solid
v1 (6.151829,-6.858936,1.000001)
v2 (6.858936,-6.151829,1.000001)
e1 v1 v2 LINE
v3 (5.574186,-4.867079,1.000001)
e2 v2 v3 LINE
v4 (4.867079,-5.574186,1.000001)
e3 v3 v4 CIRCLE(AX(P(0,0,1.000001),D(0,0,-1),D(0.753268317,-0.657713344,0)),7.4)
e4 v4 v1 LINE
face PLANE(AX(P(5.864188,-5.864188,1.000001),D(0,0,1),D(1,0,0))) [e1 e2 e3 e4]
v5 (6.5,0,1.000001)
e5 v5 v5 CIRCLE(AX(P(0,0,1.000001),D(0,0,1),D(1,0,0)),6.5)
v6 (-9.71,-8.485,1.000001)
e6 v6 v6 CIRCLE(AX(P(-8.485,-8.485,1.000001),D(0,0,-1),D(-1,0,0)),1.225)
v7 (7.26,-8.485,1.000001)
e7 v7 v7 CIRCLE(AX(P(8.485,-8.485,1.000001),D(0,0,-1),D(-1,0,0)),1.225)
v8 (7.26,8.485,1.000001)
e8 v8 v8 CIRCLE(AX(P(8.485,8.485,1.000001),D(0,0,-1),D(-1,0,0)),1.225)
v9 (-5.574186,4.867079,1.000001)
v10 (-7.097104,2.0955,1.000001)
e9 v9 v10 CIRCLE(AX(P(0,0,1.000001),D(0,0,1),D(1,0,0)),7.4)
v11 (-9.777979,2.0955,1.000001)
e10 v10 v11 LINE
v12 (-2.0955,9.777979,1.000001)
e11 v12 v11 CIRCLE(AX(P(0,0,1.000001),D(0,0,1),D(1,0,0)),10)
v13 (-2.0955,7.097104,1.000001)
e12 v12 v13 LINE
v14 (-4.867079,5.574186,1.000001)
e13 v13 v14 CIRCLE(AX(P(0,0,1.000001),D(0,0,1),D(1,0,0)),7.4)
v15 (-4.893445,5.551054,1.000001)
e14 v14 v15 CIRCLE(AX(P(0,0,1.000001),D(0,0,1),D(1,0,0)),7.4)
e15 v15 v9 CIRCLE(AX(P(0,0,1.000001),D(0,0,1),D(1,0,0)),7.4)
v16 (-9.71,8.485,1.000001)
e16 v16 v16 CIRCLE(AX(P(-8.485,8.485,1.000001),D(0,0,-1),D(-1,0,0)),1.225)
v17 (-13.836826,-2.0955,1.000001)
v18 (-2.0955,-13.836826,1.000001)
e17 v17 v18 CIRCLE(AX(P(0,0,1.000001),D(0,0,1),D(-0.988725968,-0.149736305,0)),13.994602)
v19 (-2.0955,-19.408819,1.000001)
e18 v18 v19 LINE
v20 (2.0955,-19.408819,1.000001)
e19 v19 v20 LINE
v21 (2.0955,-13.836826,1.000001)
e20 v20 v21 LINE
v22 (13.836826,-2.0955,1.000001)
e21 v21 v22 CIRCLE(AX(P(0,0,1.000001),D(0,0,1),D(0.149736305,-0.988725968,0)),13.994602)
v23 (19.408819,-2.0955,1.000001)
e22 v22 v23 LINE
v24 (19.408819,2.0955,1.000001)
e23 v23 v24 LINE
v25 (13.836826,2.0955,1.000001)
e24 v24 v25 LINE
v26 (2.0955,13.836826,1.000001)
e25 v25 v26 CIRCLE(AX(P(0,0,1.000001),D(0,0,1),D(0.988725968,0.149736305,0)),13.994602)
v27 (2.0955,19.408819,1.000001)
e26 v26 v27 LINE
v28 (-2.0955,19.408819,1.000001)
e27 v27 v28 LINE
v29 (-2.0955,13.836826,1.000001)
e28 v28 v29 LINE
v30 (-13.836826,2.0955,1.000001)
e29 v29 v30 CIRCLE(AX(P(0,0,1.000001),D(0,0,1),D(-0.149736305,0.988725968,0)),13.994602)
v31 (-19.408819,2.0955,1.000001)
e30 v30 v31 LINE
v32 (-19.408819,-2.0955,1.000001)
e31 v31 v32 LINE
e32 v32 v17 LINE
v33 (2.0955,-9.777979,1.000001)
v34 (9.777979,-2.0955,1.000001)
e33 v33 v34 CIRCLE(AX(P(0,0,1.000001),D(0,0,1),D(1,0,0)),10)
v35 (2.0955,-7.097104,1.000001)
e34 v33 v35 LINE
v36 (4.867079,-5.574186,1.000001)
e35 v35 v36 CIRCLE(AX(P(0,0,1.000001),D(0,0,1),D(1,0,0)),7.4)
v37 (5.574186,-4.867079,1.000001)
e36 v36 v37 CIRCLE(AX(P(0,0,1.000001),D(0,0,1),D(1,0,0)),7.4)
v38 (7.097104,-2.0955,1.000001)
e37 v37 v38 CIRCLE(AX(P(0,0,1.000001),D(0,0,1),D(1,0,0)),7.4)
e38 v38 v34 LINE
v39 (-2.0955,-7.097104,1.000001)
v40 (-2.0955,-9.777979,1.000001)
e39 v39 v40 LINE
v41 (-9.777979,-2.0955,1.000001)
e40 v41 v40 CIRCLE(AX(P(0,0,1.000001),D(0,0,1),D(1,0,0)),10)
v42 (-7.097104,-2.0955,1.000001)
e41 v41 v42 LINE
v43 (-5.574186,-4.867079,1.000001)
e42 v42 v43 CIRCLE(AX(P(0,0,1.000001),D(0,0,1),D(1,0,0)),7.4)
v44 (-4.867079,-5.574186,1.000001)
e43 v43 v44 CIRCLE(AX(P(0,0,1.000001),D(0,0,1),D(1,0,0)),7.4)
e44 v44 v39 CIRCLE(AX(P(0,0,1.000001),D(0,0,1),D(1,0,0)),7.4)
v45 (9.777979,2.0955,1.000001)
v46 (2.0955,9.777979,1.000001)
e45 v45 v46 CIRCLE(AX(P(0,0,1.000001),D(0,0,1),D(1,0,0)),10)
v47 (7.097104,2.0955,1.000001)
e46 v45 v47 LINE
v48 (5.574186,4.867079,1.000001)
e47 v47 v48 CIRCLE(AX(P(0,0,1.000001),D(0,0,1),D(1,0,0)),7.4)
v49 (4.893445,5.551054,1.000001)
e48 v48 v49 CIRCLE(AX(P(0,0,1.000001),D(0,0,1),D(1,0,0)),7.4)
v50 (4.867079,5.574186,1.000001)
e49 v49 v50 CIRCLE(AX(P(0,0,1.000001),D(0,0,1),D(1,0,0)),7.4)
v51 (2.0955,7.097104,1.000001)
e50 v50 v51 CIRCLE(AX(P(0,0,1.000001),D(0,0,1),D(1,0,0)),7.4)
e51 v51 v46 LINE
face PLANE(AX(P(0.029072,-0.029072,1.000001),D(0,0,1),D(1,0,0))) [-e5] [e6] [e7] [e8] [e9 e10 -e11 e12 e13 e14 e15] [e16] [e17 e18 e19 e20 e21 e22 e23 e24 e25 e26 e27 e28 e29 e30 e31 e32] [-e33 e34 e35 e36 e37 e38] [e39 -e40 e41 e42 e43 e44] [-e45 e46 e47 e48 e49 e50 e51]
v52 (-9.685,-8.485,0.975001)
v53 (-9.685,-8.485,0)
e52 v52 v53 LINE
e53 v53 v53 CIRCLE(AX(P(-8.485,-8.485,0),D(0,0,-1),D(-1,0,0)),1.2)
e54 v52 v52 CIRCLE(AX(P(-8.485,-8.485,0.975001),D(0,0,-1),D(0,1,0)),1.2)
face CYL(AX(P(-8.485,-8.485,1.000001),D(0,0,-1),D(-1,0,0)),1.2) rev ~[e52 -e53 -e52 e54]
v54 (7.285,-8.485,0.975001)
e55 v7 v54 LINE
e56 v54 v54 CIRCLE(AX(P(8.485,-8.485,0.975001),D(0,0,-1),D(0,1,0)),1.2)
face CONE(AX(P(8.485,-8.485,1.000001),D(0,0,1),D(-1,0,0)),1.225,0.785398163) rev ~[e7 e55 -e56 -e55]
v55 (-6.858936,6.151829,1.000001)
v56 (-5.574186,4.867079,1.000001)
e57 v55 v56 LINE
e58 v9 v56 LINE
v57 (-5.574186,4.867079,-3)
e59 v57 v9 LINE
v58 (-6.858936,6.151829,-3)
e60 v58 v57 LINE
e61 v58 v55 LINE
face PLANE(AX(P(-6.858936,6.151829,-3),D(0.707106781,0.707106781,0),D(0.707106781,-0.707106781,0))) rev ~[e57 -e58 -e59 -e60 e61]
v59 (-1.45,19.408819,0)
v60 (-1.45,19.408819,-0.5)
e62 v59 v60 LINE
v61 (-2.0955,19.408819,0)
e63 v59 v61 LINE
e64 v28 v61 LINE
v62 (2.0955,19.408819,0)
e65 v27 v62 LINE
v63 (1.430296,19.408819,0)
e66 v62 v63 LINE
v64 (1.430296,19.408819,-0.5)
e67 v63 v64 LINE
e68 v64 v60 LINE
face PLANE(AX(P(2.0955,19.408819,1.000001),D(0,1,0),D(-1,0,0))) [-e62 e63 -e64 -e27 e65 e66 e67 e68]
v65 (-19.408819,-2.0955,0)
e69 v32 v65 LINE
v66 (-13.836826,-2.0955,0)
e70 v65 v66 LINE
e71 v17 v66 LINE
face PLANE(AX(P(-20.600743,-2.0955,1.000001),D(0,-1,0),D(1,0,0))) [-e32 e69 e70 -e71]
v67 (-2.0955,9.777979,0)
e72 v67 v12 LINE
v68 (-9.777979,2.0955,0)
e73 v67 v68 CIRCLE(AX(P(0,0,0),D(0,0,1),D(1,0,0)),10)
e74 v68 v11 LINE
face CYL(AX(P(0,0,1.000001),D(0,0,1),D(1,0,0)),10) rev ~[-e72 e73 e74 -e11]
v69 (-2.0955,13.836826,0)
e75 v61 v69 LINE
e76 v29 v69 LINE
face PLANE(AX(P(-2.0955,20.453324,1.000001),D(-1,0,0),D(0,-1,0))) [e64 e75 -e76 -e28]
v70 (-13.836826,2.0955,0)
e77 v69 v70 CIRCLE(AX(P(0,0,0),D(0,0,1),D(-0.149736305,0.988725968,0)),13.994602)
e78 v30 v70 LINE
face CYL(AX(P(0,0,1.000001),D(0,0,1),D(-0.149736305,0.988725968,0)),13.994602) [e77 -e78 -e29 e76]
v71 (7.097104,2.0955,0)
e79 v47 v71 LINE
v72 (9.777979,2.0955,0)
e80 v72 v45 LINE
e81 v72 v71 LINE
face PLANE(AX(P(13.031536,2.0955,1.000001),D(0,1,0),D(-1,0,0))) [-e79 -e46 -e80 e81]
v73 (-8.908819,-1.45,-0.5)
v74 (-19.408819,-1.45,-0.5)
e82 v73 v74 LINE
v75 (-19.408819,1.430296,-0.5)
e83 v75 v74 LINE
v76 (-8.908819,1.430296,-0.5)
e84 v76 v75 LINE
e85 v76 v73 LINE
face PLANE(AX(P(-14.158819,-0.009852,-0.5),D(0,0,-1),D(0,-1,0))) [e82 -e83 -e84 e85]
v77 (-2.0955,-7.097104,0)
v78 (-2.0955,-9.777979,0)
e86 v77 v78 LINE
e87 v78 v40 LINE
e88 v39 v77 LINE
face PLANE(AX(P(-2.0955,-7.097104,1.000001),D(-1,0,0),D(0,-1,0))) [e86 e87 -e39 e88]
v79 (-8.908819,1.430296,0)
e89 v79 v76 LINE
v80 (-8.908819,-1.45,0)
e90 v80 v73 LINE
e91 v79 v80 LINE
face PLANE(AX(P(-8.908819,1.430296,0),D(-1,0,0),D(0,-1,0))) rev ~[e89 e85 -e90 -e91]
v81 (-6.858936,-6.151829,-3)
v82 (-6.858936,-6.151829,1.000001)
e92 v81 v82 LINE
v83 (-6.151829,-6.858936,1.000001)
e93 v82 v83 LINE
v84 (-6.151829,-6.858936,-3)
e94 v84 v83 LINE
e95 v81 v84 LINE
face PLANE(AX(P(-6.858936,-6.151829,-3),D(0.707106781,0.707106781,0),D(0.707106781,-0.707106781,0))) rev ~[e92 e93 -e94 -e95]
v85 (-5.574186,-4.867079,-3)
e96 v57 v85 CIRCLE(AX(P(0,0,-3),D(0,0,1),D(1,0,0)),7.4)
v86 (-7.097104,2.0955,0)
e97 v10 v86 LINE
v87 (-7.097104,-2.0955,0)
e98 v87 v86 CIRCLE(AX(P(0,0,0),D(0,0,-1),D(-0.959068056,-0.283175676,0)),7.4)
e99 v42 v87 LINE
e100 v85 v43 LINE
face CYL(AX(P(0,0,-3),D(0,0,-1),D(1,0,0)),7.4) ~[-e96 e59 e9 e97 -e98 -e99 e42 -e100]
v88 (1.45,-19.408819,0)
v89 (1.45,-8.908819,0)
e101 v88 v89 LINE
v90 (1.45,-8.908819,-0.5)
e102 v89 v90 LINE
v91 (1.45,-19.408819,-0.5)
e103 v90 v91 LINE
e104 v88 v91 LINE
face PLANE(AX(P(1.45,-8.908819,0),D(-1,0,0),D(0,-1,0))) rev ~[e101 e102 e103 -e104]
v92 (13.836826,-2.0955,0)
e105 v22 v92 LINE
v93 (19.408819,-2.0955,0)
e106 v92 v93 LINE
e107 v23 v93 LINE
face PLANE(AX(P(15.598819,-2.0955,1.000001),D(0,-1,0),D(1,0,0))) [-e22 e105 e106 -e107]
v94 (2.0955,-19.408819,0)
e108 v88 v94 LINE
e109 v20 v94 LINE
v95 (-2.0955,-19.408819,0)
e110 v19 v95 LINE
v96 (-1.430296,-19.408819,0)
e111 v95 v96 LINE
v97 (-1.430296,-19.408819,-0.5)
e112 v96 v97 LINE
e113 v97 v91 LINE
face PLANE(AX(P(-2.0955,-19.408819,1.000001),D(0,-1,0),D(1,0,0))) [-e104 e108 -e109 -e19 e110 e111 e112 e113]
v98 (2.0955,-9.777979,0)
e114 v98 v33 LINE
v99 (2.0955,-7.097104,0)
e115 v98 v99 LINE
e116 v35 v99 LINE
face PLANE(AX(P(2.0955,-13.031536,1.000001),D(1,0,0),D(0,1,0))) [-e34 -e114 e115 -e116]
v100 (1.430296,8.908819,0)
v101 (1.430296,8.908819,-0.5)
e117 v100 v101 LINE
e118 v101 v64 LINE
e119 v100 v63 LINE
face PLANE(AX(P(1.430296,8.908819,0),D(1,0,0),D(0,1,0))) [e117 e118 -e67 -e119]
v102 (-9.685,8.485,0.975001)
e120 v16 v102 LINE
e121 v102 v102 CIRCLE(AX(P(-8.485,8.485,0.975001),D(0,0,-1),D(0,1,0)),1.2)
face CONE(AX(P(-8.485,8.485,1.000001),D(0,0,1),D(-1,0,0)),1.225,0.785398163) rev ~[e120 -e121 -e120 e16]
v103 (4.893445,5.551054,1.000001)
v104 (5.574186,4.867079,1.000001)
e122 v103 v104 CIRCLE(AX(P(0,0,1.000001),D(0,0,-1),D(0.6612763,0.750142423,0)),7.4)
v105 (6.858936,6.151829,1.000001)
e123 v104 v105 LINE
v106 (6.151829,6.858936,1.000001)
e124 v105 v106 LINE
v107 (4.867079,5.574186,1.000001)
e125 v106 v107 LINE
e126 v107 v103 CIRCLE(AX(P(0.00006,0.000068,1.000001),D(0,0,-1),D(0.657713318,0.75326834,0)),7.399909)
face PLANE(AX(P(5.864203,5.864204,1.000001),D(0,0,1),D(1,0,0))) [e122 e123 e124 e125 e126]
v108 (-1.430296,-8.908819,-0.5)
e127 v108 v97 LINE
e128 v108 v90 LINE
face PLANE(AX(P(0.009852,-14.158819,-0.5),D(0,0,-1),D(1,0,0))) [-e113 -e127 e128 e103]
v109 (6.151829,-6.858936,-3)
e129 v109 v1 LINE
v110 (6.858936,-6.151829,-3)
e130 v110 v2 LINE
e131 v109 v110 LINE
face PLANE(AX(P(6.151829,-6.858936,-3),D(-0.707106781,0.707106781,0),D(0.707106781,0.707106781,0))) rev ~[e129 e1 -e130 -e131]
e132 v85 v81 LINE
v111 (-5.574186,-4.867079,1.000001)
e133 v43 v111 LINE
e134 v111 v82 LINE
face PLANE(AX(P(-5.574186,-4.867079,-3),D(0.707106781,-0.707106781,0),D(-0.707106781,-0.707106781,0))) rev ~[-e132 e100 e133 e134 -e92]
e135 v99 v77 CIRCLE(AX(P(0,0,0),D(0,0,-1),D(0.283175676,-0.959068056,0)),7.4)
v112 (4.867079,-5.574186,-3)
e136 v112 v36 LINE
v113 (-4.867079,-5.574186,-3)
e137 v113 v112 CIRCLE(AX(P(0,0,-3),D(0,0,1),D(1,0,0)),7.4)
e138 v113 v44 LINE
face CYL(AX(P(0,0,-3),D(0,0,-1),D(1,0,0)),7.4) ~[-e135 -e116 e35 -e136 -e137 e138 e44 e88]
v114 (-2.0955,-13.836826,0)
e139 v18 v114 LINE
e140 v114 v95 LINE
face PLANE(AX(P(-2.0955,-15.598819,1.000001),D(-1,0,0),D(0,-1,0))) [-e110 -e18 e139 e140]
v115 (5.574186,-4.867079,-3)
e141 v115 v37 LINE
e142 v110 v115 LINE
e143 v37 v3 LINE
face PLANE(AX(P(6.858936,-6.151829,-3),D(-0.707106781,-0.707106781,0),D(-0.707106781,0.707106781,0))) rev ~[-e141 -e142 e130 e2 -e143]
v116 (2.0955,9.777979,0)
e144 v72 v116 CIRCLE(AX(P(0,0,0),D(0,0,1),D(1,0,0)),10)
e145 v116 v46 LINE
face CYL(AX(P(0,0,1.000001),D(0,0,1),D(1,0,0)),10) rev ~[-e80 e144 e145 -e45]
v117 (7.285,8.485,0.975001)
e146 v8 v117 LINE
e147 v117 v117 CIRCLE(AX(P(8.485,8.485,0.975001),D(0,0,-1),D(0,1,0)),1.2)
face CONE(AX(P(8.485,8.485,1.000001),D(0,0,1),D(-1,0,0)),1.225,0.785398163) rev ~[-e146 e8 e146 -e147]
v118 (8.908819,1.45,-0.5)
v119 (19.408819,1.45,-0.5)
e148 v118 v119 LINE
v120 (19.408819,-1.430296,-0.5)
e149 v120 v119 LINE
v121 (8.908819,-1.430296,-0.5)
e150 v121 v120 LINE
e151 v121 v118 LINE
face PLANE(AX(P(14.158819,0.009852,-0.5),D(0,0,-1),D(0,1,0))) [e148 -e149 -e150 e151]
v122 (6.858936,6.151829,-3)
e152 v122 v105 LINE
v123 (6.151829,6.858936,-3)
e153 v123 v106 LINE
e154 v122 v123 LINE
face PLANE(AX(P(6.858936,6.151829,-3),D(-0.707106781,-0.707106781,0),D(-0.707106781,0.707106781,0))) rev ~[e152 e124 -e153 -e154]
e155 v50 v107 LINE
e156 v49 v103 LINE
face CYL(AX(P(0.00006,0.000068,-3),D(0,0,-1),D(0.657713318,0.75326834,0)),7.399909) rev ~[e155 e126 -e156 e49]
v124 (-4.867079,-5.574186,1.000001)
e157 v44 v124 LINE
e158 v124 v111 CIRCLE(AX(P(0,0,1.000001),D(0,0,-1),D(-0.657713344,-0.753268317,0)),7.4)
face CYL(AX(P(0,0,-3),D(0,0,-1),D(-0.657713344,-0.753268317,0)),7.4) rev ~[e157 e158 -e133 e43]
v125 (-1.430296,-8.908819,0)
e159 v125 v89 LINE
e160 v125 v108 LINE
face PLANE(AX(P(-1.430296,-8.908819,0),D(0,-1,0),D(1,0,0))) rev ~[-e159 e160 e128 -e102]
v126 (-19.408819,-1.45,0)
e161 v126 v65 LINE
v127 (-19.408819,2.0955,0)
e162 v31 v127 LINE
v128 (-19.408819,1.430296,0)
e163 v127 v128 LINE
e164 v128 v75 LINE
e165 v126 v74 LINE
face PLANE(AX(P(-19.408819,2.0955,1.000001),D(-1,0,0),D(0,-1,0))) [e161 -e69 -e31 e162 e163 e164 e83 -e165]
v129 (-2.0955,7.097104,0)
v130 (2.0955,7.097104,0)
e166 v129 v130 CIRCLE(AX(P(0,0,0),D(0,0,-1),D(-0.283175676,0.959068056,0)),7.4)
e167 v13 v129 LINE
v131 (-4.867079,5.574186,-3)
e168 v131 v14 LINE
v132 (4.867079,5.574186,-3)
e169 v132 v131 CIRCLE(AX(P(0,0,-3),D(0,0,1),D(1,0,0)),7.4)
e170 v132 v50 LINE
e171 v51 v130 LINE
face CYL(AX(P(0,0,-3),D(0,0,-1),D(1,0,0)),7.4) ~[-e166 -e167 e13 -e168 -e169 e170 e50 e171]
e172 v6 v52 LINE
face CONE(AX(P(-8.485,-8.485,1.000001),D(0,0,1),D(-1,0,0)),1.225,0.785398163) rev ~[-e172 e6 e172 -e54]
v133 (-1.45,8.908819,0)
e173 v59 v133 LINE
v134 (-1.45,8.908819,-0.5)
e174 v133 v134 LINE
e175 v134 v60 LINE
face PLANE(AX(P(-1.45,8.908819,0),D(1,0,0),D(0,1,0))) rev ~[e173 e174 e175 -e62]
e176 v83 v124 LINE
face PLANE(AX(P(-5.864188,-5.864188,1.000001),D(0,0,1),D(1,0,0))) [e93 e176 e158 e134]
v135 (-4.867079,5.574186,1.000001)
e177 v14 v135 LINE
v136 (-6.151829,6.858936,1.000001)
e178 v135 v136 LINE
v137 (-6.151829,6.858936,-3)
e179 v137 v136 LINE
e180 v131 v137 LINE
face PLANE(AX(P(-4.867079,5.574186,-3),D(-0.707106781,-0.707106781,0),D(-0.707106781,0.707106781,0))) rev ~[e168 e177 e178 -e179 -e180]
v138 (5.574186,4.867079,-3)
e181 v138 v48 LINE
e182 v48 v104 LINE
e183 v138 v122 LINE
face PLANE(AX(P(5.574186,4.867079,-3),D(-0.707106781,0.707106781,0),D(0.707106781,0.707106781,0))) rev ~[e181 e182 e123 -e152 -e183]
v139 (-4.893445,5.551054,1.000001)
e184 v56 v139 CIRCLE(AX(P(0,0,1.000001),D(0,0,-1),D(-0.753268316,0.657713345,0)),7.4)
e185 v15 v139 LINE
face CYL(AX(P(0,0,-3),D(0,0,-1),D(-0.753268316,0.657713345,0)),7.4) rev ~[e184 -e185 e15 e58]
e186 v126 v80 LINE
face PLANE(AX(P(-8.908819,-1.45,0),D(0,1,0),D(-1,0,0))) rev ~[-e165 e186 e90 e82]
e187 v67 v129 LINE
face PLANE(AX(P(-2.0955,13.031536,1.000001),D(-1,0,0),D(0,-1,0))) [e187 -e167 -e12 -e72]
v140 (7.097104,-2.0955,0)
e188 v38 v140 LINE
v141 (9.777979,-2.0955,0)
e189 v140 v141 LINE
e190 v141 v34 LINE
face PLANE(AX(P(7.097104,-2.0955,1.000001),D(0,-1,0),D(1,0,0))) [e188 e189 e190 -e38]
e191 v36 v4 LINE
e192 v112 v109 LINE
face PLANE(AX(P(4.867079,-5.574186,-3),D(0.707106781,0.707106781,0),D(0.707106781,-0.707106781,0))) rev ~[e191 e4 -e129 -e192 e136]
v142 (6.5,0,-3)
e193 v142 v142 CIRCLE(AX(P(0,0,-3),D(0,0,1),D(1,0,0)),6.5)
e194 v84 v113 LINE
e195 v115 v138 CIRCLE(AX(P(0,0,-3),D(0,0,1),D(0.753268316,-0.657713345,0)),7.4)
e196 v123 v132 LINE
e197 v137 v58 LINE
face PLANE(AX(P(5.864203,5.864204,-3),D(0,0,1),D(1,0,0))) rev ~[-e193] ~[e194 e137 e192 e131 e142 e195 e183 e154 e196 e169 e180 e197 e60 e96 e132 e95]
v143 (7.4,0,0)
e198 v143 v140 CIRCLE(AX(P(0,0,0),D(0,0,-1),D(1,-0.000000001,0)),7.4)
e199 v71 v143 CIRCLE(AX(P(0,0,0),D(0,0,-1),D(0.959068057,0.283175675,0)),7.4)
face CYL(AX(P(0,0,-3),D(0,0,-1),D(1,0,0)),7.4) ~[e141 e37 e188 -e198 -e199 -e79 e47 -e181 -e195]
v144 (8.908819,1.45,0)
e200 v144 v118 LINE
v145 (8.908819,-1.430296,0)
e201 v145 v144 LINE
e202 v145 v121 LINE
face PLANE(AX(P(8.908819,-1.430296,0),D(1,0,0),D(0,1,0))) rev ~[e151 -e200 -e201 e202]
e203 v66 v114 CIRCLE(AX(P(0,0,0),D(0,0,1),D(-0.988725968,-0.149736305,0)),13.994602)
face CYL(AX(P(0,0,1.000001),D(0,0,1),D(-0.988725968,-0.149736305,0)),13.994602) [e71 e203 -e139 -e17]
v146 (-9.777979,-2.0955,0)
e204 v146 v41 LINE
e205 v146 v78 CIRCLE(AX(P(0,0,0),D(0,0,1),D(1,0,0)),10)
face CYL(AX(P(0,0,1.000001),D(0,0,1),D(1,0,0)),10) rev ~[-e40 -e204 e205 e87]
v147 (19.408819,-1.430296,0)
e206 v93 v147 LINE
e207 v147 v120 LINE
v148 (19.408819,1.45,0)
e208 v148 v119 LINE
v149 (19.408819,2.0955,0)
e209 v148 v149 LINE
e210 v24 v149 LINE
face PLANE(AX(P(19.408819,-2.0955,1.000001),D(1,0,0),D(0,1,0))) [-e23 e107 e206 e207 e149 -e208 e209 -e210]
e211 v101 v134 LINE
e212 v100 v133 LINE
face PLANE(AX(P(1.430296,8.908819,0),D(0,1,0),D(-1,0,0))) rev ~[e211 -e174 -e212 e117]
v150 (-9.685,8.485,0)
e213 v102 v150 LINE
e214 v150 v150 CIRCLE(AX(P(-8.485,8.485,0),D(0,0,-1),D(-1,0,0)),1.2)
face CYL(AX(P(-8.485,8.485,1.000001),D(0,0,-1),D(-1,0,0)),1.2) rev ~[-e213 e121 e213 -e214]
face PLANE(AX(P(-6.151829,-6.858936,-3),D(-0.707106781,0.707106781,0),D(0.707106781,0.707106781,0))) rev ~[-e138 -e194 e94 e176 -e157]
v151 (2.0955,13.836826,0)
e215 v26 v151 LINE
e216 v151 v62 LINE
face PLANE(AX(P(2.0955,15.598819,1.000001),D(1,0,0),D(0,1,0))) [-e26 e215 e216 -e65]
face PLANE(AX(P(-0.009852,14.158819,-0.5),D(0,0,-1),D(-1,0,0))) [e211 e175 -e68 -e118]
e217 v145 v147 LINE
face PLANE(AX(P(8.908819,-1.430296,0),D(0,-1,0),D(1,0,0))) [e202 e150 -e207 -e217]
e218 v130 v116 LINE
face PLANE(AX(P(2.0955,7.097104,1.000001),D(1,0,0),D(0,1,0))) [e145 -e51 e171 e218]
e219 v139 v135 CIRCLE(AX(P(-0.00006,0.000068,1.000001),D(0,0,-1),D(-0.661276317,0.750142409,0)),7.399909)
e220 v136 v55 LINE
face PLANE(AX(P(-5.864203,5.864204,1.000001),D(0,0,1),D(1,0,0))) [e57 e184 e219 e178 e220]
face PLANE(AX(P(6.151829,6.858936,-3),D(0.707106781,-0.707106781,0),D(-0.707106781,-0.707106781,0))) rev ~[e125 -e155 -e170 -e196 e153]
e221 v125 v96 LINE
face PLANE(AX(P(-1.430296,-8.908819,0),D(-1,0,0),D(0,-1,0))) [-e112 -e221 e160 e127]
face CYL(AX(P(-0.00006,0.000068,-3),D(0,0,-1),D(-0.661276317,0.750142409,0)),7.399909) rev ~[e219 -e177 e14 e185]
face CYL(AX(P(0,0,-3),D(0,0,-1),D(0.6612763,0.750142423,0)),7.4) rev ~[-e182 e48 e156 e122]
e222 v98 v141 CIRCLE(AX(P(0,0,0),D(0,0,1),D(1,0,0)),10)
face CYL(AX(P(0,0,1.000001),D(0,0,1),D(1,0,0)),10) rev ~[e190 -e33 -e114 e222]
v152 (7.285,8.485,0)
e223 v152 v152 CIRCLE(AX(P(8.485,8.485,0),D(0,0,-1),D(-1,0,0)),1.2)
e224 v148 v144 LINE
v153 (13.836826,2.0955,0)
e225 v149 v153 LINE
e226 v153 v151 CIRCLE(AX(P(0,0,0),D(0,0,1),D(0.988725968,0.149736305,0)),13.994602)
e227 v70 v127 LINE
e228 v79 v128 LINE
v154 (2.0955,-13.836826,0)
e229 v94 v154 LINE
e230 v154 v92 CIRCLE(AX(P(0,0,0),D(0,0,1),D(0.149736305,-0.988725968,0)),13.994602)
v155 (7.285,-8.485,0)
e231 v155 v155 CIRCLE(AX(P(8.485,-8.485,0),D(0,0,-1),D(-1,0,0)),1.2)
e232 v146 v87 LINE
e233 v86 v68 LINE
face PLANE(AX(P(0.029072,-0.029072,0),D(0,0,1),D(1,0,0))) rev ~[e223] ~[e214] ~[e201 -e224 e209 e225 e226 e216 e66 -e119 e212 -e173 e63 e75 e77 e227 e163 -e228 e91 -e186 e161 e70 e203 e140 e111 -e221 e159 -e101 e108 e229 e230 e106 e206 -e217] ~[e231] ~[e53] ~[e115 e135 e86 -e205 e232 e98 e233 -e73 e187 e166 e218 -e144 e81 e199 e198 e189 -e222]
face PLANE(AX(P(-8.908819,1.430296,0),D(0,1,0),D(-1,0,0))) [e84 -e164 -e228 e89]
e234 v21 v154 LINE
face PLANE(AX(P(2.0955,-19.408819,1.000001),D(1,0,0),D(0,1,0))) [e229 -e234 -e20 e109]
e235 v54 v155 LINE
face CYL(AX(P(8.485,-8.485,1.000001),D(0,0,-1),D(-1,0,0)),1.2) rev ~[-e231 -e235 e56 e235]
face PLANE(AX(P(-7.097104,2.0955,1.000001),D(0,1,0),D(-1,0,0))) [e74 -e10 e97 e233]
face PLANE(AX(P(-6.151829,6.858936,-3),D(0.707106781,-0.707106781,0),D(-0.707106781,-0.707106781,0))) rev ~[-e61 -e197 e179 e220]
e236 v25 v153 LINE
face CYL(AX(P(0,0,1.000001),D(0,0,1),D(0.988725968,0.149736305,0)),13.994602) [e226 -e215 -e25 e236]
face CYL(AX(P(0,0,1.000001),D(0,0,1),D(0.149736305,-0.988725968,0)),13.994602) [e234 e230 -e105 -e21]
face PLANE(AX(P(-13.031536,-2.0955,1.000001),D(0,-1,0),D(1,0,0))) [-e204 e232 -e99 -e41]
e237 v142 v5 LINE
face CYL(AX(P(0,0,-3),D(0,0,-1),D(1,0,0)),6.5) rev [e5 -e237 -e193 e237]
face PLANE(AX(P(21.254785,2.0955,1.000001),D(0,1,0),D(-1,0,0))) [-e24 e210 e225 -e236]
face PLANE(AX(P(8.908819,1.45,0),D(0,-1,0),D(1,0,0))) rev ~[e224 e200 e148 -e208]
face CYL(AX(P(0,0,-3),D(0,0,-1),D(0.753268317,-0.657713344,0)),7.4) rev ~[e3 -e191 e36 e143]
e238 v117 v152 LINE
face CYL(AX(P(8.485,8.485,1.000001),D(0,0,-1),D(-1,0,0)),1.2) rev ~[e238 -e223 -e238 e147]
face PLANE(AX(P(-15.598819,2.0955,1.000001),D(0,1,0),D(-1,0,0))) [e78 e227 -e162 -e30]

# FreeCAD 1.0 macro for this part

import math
import FreeCAD as App
import Part
import Sketcher

V = App.Vector
Q = App.Units.Quantity

doc = App.newDocument("Part")
body = doc.addObject("PartDesign::Body", "Body")

sketch1 = body.newObject("Sketcher::SketchObject", "Sketch")
sketch1.AttachmentSupport = (doc.getObject("XY_Plane"), [""])
sketch1.MapMode = "FlatFace"
sketch1.addGeometry(Part.Circle(V(0, 0, 0), V(0, 0, 1), 7), False)
sketch1.addGeometry(Part.Circle(V(0, 0, 0), V(0, 0, 1), 6), False)
sketch1.addConstraint(Sketcher.Constraint("Coincident", 0, 3, -1, 1))
sketch1.addConstraint(Sketcher.Constraint("Coincident", 1, 3, -1, 1))
sketch1.addConstraint(Sketcher.Constraint("Diameter", 1, Q("13 mm")))
sketch1.addConstraint(Sketcher.Constraint("Diameter", 0, Q("14.8 mm")))
pad1 = body.newObject("PartDesign::Pad", "Pad")
pad1.Profile = sketch1
pad1.Type = "TwoLengths"
pad1.Length = 1.000001
pad1.Length2 = 3

sketch2 = body.newObject("Sketcher::SketchObject", "Sketch001")
sketch2.AttachmentSupport = (doc.getObject("XY_Plane"), [""])
sketch2.MapMode = "FlatFace"
sketch2.AttachmentOffset = App.Placement(V(0, 0, 1.000001), App.Rotation())
sketch2.addGeometry(Part.ArcOfCircle(Part.Circle(V(0, 0, 0), V(0, 0, 1), 15.7), math.radians(-82), math.radians(-45)), False)
sketch2.addGeometry(Part.ArcOfCircle(Part.Circle(V(0, 0, 0), V(0, 0, 1), 15.7), math.radians(-45), math.radians(-8)), False)
sketch2.addGeometry(Part.LineSegment(V(15.6, -2.1, 0), V(19.4, -2.1, 0)), False)
sketch2.addGeometry(Part.LineSegment(V(19.4, -2.1, 0), V(19.4, 2.1, 0)), False)
sketch2.addGeometry(Part.LineSegment(V(19.4, 2.1, 0), V(15.6, 2.1, 0)), False)
sketch2.addGeometry(Part.ArcOfCircle(Part.Circle(V(0, 0, 0), V(0, 0, 1), 15.7), math.radians(8), math.radians(82)), False)
sketch2.addGeometry(Part.LineSegment(V(2.1, 15.6, 0), V(2.1, 19.4, 0)), False)
sketch2.addGeometry(Part.LineSegment(V(2.1, 19.4, 0), V(-2.1, 19.4, 0)), False)
sketch2.addGeometry(Part.LineSegment(V(-2.1, 19.4, 0), V(-2.1, 15.6, 0)), False)
sketch2.addGeometry(Part.ArcOfCircle(Part.Circle(V(0, 0, 0), V(0, 0, 1), 15.7), math.radians(98), math.radians(172)), False)
sketch2.addGeometry(Part.LineSegment(V(-15.6, 2.1, 0), V(-19.4, 2.1, 0)), False)
sketch2.addGeometry(Part.LineSegment(V(-19.4, 2.1, 0), V(-19.4, -2.1, 0)), False)
sketch2.addGeometry(Part.LineSegment(V(-19.4, -2.1, 0), V(-15.6, -2.1, 0)), False)
sketch2.addGeometry(Part.ArcOfCircle(Part.Circle(V(0, 0, 0), V(0, 0, 1), 15.7), math.radians(-172), math.radians(-98)), False)
sketch2.addGeometry(Part.LineSegment(V(-2.1, -15.6, 0), V(-2.1, -19.4, 0)), False)
sketch2.addGeometry(Part.LineSegment(V(-2.1, -19.4, 0), V(2.1, -19.4, 0)), False)
sketch2.addGeometry(Part.LineSegment(V(2.1, -19.4, 0), V(2.1, -15.6, 0)), False)
sketch2.addGeometry(Part.ArcOfCircle(Part.Circle(V(0, 0, 0), V(0, 0, 1), 7.4), math.radians(0), math.radians(16.45)), False)
sketch2.addGeometry(Part.ArcOfCircle(Part.Circle(V(0, 0, 0), V(0, 0, 1), 7.4), math.radians(-16.45), math.radians(0)), False)
sketch2.addGeometry(Part.LineSegment(V(7.1, -2.1, 0), V(13, -2.1, 0)), False)
sketch2.addGeometry(Part.ArcOfCircle(Part.Circle(V(0, 0, 0), V(0, 0, 1), 13.2), math.radians(-45), math.radians(-9)), False)
sketch2.addGeometry(Part.ArcOfCircle(Part.Circle(V(0, 0, 0), V(0, 0, 1), 13.2), math.radians(-81), math.radians(-45)), False)
sketch2.addGeometry(Part.LineSegment(V(2.1, -13, 0), V(2.1, -7.1, 0)), False)
sketch2.addGeometry(Part.ArcOfCircle(Part.Circle(V(0, 0, 0), V(0, 0, 1), 7.4), math.radians(-106), math.radians(-74)), False)
sketch2.addGeometry(Part.LineSegment(V(-2.1, -7.1, 0), V(-2.1, -13, 0)), False)
sketch2.addGeometry(Part.ArcOfCircle(Part.Circle(V(0, 0, 0), V(0, 0, 1), 13.2), math.radians(-171), math.radians(-99)), False)
sketch2.addGeometry(Part.LineSegment(V(-13, -2.1, 0), V(-7.1, -2.1, 0)), False)
sketch2.addGeometry(Part.ArcOfCircle(Part.Circle(V(0, 0, 0), V(0, 0, 1), 7.4), math.radians(164), math.radians(196)), False)
sketch2.addGeometry(Part.LineSegment(V(-7.1, 2.1, 0), V(-13, 2.1, 0)), False)
sketch2.addGeometry(Part.ArcOfCircle(Part.Circle(V(0, 0, 0), V(0, 0, 1), 13.2), math.radians(99), math.radians(171)), False)
sketch2.addGeometry(Part.LineSegment(V(-2.1, 13, 0), V(-2.1, 7.1, 0)), False)
sketch2.addGeometry(Part.ArcOfCircle(Part.Circle(V(0, 0, 0), V(0, 0, 1), 7.4), math.radians(74), math.radians(106)), False)
sketch2.addGeometry(Part.LineSegment(V(2.1, 7.1, 0), V(2.1, 13, 0)), False)
sketch2.addGeometry(Part.ArcOfCircle(Part.Circle(V(0, 0, 0), V(0, 0, 1), 13.2), math.radians(9), math.radians(81)), False)
sketch2.addGeometry(Part.LineSegment(V(13, 2.1, 0), V(7.1, 2.1, 0)), False)
sketch2.addConstraint(Sketcher.Constraint("Tangent", 0, 2, 1, 1))
sketch2.addConstraint(Sketcher.Constraint("Coincident", 1, 2, 2, 1))
sketch2.addConstraint(Sketcher.Constraint("Coincident", 2, 2, 3, 1))
sketch2.addConstraint(Sketcher.Constraint("Coincident", 3, 2, 4, 1))
sketch2.addConstraint(Sketcher.Constraint("Coincident", 4, 2, 5, 1))
sketch2.addConstraint(Sketcher.Constraint("Coincident", 5, 2, 6, 1))
sketch2.addConstraint(Sketcher.Constraint("Coincident", 6, 2, 7, 1))
sketch2.addConstraint(Sketcher.Constraint("Coincident", 7, 2, 8, 1))
sketch2.addConstraint(Sketcher.Constraint("Coincident", 8, 2, 9, 1))
sketch2.addConstraint(Sketcher.Constraint("Coincident", 9, 2, 10, 1))
sketch2.addConstraint(Sketcher.Constraint("Coincident", 10, 2, 11, 1))
sketch2.addConstraint(Sketcher.Constraint("Coincident", 11, 2, 12, 1))
sketch2.addConstraint(Sketcher.Constraint("Coincident", 12, 2, 13, 1))
sketch2.addConstraint(Sketcher.Constraint("Coincident", 13, 2, 14, 1))
sketch2.addConstraint(Sketcher.Constraint("Coincident", 14, 2, 15, 1))
sketch2.addConstraint(Sketcher.Constraint("Coincident", 15, 2, 16, 1))
sketch2.addConstraint(Sketcher.Constraint("Coincident", 16, 2, 0, 1))
sketch2.addConstraint(Sketcher.Constraint("Tangent", 17, 1, 18, 2))
sketch2.addConstraint(Sketcher.Constraint("Coincident", 18, 1, 19, 1))
sketch2.addConstraint(Sketcher.Constraint("Coincident", 19, 2, 20, 2))
sketch2.addConstraint(Sketcher.Constraint("Tangent", 20, 1, 21, 2))
sketch2.addConstraint(Sketcher.Constraint("Coincident", 21, 1, 22, 1))
sketch2.addConstraint(Sketcher.Constraint("Coincident", 22, 2, 23, 2))
sketch2.addConstraint(Sketcher.Constraint("Coincident", 23, 1, 24, 1))
sketch2.addConstraint(Sketcher.Constraint("Coincident", 24, 2, 25, 2))
sketch2.addConstraint(Sketcher.Constraint("Coincident", 25, 1, 26, 1))
sketch2.addConstraint(Sketcher.Constraint("Coincident", 26, 2, 27, 2))
sketch2.addConstraint(Sketcher.Constraint("Coincident", 27, 1, 28, 1))
sketch2.addConstraint(Sketcher.Constraint("Coincident", 28, 2, 29, 2))
sketch2.addConstraint(Sketcher.Constraint("Coincident", 29, 1, 30, 1))
sketch2.addConstraint(Sketcher.Constraint("Coincident", 30, 2, 31, 2))
sketch2.addConstraint(Sketcher.Constraint("Coincident", 31, 1, 32, 1))
sketch2.addConstraint(Sketcher.Constraint("Coincident", 32, 2, 33, 2))
sketch2.addConstraint(Sketcher.Constraint("Coincident", 33, 1, 34, 1))
sketch2.addConstraint(Sketcher.Constraint("Coincident", 34, 2, 17, 2))
sketch2.addConstraint(Sketcher.Constraint("Horizontal", 2))
sketch2.addConstraint(Sketcher.Constraint("Vertical", 3))
sketch2.addConstraint(Sketcher.Constraint("Horizontal", 4))
sketch2.addConstraint(Sketcher.Constraint("Vertical", 6))
sketch2.addConstraint(Sketcher.Constraint("Horizontal", 7))
sketch2.addConstraint(Sketcher.Constraint("Vertical", 8))
sketch2.addConstraint(Sketcher.Constraint("Horizontal", 10))
sketch2.addConstraint(Sketcher.Constraint("Vertical", 11))
sketch2.addConstraint(Sketcher.Constraint("Horizontal", 12))
sketch2.addConstraint(Sketcher.Constraint("Vertical", 14))
sketch2.addConstraint(Sketcher.Constraint("Horizontal", 15))
sketch2.addConstraint(Sketcher.Constraint("Vertical", 16))
sketch2.addConstraint(Sketcher.Constraint("Horizontal", 19))
sketch2.addConstraint(Sketcher.Constraint("Vertical", 22))
sketch2.addConstraint(Sketcher.Constraint("Vertical", 24))
sketch2.addConstraint(Sketcher.Constraint("Horizontal", 26))
sketch2.addConstraint(Sketcher.Constraint("Horizontal", 28))
sketch2.addConstraint(Sketcher.Constraint("Vertical", 30))
sketch2.addConstraint(Sketcher.Constraint("Vertical", 32))
sketch2.addConstraint(Sketcher.Constraint("Horizontal", 34))
sketch2.addConstraint(Sketcher.Constraint("Coincident", 0, 3, -1, 1))
sketch2.addConstraint(Sketcher.Constraint("Coincident", 5, 3, -1, 1))
sketch2.addConstraint(Sketcher.Constraint("Coincident", 9, 3, -1, 1))
sketch2.addConstraint(Sketcher.Constraint("Coincident", 13, 3, -1, 1))
sketch2.addConstraint(Sketcher.Constraint("Coincident", 17, 3, -1, 1))
sketch2.addConstraint(Sketcher.Constraint("Coincident", 20, 3, -1, 1))
sketch2.addConstraint(Sketcher.Constraint("Coincident", 23, 3, -1, 1))
sketch2.addConstraint(Sketcher.Constraint("Coincident", 25, 3, -1, 1))
sketch2.addConstraint(Sketcher.Constraint("Coincident", 27, 3, -1, 1))
sketch2.addConstraint(Sketcher.Constraint("Coincident", 29, 3, -1, 1))
sketch2.addConstraint(Sketcher.Constraint("Coincident", 31, 3, -1, 1))
sketch2.addConstraint(Sketcher.Constraint("Coincident", 33, 3, -1, 1))
sketch2.addConstraint(Sketcher.Constraint("Equal", 0, 1))
sketch2.addConstraint(Sketcher.Constraint("Equal", 1, 5))
sketch2.addConstraint(Sketcher.Constraint("Equal", 5, 9))
sketch2.addConstraint(Sketcher.Constraint("Equal", 9, 13))
sketch2.addConstraint(Sketcher.Constraint("Equal", 17, 18))
sketch2.addConstraint(Sketcher.Constraint("Equal", 20, 21))
sketch2.addConstraint(Sketcher.Constraint("Equal", 18, 23))
sketch2.addConstraint(Sketcher.Constraint("Equal", 21, 25))
sketch2.addConstraint(Sketcher.Constraint("Equal", 23, 27))
sketch2.addConstraint(Sketcher.Constraint("Equal", 25, 29))
sketch2.addConstraint(Sketcher.Constraint("Equal", 27, 31))
sketch2.addConstraint(Sketcher.Constraint("Equal", 29, 33))
sketch2.addConstraint(Sketcher.Constraint("Symmetric", 2, 2, 10, 2, -1, 1))
sketch2.addConstraint(Sketcher.Constraint("Symmetric", 6, 2, 14, 2, -1, 1))
sketch2.addConstraint(Sketcher.Constraint("PointOnObject", 17, 1, -1))
sketch2.addConstraint(Sketcher.Constraint("Horizontal", 5, 2, 8, 2))
sketch2.addConstraint(Sketcher.Constraint("Horizontal", 4, 2, 9, 2))
sketch2.addConstraint(Sketcher.Constraint("Horizontal", 2, 2, 11, 2))
sketch2.addConstraint(Sketcher.Constraint("Horizontal", 13, 2, 16, 2))
sketch2.addConstraint(Sketcher.Constraint("Horizontal", 12, 2, 18, 1))
sketch2.addConstraint(Sketcher.Constraint("Horizontal", 22, 2, 23, 1))
sketch2.addConstraint(Sketcher.Constraint("Horizontal", 19, 2, 25, 1))
sketch2.addConstraint(Sketcher.Constraint("Horizontal", 10, 2, 27, 1))
sketch2.addConstraint(Sketcher.Constraint("Horizontal", 30, 2, 31, 1))
sketch2.addConstraint(Sketcher.Constraint("Horizontal", 28, 2, 33, 1))
sketch2.addConstraint(Sketcher.Constraint("Vertical", 16, 2, 21, 1))
sketch2.addConstraint(Sketcher.Constraint("Vertical", 24, 2, 29, 1))
sketch2.addConstraint(Sketcher.Constraint("Equal", 15, 3))
sketch2.addConstraint(Sketcher.Constraint("Equal", 12, 6))
sketch2.addConstraint(Sketcher.Constraint("Radius", 17, Q("7.4 mm")))
sketch2.addConstraint(Sketcher.Constraint("DistanceX", 2, 1, 2, 2, Q("3.81 mm")))
sketch2.addConstraint(Sketcher.Constraint("DistanceX", 7, 2, 7, 1, Q("4.191 mm")))
sketch2.addConstraint(Sketcher.Constraint("Radius", 0, Q("15.738941 mm")))
sketch2.addConstraint(Sketcher.Constraint("Radius", 20, Q("13.198941 mm")))
sketch2.addConstraint(Sketcher.Constraint("DistanceX", -1, 1, 20, 1, Q("9.333061 mm")))
sketch2.addConstraint(Sketcher.Constraint("DistanceX", 20, 1, 0, 2, Q("1.796051 mm")))
pad2 = body.newObject("PartDesign::Pad", "Pad001")
pad2.Profile = sketch2
pad2.Length = 1.000001
pad2.Reversed = True

sketch3 = body.newObject("Sketcher::SketchObject", "Sketch002")
sketch3.AttachmentSupport = (doc.getObject("XY_Plane"), [""])
sketch3.MapMode = "FlatFace"
sketch3.AttachmentOffset = App.Placement(V(0, 0, -3), App.Rotation())
sketch3.addGeometry(Part.ArcOfCircle(Part.Circle(V(0, 0, 0), V(0, 0, 1), 7.4), math.radians(48.6), math.radians(48.87)), False)
sketch3.addGeometry(Part.ArcOfCircle(Part.Circle(V(0, 0, 0), V(0, 0, 1), 7.4), math.radians(41.13), math.radians(48.6)), False)
sketch3.addGeometry(Part.LineSegment(V(5.574, 4.867, 0), V(6.859, 6.152, 0)), False)
sketch3.addGeometry(Part.LineSegment(V(6.859, 6.152, 0), V(6.152, 6.859, 0)), False)
sketch3.addGeometry(Part.LineSegment(V(6.152, 6.859, 0), V(4.867, 5.574, 0)), False)
sketch3.addGeometry(Part.ArcOfCircle(Part.Circle(V(0, 0, 0), V(0, 0, 1), 7.4), math.radians(131.13), math.radians(131.4)), False)
sketch3.addGeometry(Part.LineSegment(V(-4.867, 5.574, 0), V(-6.152, 6.859, 0)), False)
sketch3.addGeometry(Part.LineSegment(V(-6.152, 6.859, 0), V(-6.859, 6.152, 0)), False)
sketch3.addGeometry(Part.LineSegment(V(-6.859, 6.152, 0), V(-5.574, 4.867, 0)), False)
sketch3.addGeometry(Part.ArcOfCircle(Part.Circle(V(0, 0, 0), V(0, 0, 1), 7.4), math.radians(131.4), math.radians(138.87)), False)
sketch3.addGeometry(Part.LineSegment(V(6.859, -6.152, 0), V(5.574, -4.867, 0)), False)
sketch3.addGeometry(Part.ArcOfCircle(Part.Circle(V(0, 0, 0), V(0, 0, 1), 7.4), math.radians(-48.87), math.radians(-41.13)), False)
sketch3.addGeometry(Part.LineSegment(V(4.867, -5.574, 0), V(6.152, -6.859, 0)), False)
sketch3.addGeometry(Part.LineSegment(V(6.152, -6.859, 0), V(6.859, -6.152, 0)), False)
sketch3.addGeometry(Part.ArcOfCircle(Part.Circle(V(0, 0, 0), V(0, 0, 1), 7.4), math.radians(-138.87), math.radians(-131.13)), False)
sketch3.addGeometry(Part.LineSegment(V(-5.574, -4.867, 0), V(-6.859, -6.152, 0)), False)
sketch3.addGeometry(Part.LineSegment(V(-6.859, -6.152, 0), V(-6.152, -6.859, 0)), False)
sketch3.addGeometry(Part.LineSegment(V(-6.152, -6.859, 0), V(-4.867, -5.574, 0)), False)
sketch3.addConstraint(Sketcher.Constraint("Tangent", 0, 1, 1, 2))
sketch3.addConstraint(Sketcher.Constraint("Coincident", 1, 1, 2, 1))
sketch3.addConstraint(Sketcher.Constraint("Coincident", 2, 2, 3, 1))
sketch3.addConstraint(Sketcher.Constraint("Coincident", 3, 2, 4, 1))
sketch3.addConstraint(Sketcher.Constraint("Coincident", 4, 2, 0, 2))
sketch3.addConstraint(Sketcher.Constraint("Coincident", 5, 1, 6, 1))
sketch3.addConstraint(Sketcher.Constraint("Coincident", 6, 2, 7, 1))
sketch3.addConstraint(Sketcher.Constraint("Coincident", 7, 2, 8, 1))
sketch3.addConstraint(Sketcher.Constraint("Coincident", 8, 2, 9, 2))
sketch3.addConstraint(Sketcher.Constraint("Tangent", 9, 1, 5, 2))
sketch3.addConstraint(Sketcher.Constraint("Coincident", 10, 2, 11, 2))
sketch3.addConstraint(Sketcher.Constraint("Coincident", 11, 1, 12, 1))
sketch3.addConstraint(Sketcher.Constraint("Coincident", 12, 2, 13, 1))
sketch3.addConstraint(Sketcher.Constraint("Coincident", 13, 2, 10, 1))
sketch3.addConstraint(Sketcher.Constraint("Coincident", 14, 1, 15, 1))
sketch3.addConstraint(Sketcher.Constraint("Coincident", 15, 2, 16, 1))
sketch3.addConstraint(Sketcher.Constraint("Coincident", 16, 2, 17, 1))
sketch3.addConstraint(Sketcher.Constraint("Coincident", 17, 2, 14, 2))
sketch3.addConstraint(Sketcher.Constraint("Coincident", 1, 3, -1, 1))
sketch3.addConstraint(Sketcher.Constraint("Coincident", 9, 3, -1, 1))
sketch3.addConstraint(Sketcher.Constraint("Coincident", 11, 3, -1, 1))
sketch3.addConstraint(Sketcher.Constraint("Coincident", 14, 3, -1, 1))
sketch3.addConstraint(Sketcher.Constraint("Equal", 0, 5))
sketch3.addConstraint(Sketcher.Constraint("Equal", 1, 9))
sketch3.addConstraint(Sketcher.Constraint("Equal", 9, 11))
sketch3.addConstraint(Sketcher.Constraint("Equal", 11, 14))
sketch3.addConstraint(Sketcher.Constraint("Symmetric", 6, 2, 12, 2, -1, 1))
sketch3.addConstraint(Sketcher.Constraint("Symmetric", 7, 2, 13, 2, -1, 1))
sketch3.addConstraint(Sketcher.Constraint("Symmetric", 2, 2, 15, 2, -1, 1))
sketch3.addConstraint(Sketcher.Constraint("Symmetric", 3, 2, 16, 2, -1, 1))
sketch3.addConstraint(Sketcher.Constraint("Symmetric", 3, 2, 6, 2, -2))
sketch3.addConstraint(Sketcher.Constraint("Symmetric", 2, 2, 7, 2, -2))
sketch3.addConstraint(Sketcher.Constraint("Perpendicular", 2, 3))
sketch3.addConstraint(Sketcher.Constraint("Perpendicular", 3, 4))
sketch3.addConstraint(Sketcher.Constraint("Perpendicular", 4, 6))
sketch3.addConstraint(Sketcher.Constraint("Perpendicular", 6, 7))
sketch3.addConstraint(Sketcher.Constraint("Perpendicular", 7, 8))
sketch3.addConstraint(Sketcher.Constraint("Parallel", 8, 10))
sketch3.addConstraint(Sketcher.Constraint("Parallel", 10, 12))
sketch3.addConstraint(Sketcher.Constraint("Parallel", 13, 15))
sketch3.addConstraint(Sketcher.Constraint("Perpendicular", 16, 17))
sketch3.addConstraint(Sketcher.Constraint("Horizontal", 0, 1, 9, 1))
sketch3.addConstraint(Sketcher.Constraint("Equal", 2, 4))
sketch3.addConstraint(Sketcher.Constraint("Radius", 1, Q("7.4 mm")))
sketch3.addConstraint(Sketcher.Constraint("Distance", 3, Q("1 mm")))
sketch3.addConstraint(Sketcher.Constraint("Radius", 0, Q("7.399909 mm")))
sketch3.addConstraint(Sketcher.Constraint("Distance", 2, Q("1.816911 mm")))
sketch3.addConstraint(Sketcher.Constraint("DistanceX", 0, 1, 1, 1, Q("0.680741 mm")))
pad3 = body.newObject("PartDesign::Pad", "Pad002")
pad3.Profile = sketch3
pad3.Length = 4.000001

sketch4 = body.newObject("Sketcher::SketchObject", "Sketch003")
sketch4.AttachmentSupport = (doc.getObject("XY_Plane"), [""])
sketch4.MapMode = "FlatFace"
sketch4.addGeometry(Part.LineSegment(V(1.4, 19.4, 0), V(1.4, 8.9, 0)), False)
sketch4.addGeometry(Part.LineSegment(V(1.4, 8.9, 0), V(-1.4, 8.9, 0)), False)
sketch4.addGeometry(Part.LineSegment(V(-1.4, 8.9, 0), V(-1.4, 19.4, 0)), False)
sketch4.addGeometry(Part.LineSegment(V(-1.4, 19.4, 0), V(1.4, 19.4, 0)), False)
sketch4.addConstraint(Sketcher.Constraint("Coincident", 0, 2, 1, 1))
sketch4.addConstraint(Sketcher.Constraint("Coincident", 1, 2, 2, 1))
sketch4.addConstraint(Sketcher.Constraint("Coincident", 2, 2, 3, 1))
sketch4.addConstraint(Sketcher.Constraint("Coincident", 3, 2, 0, 1))
sketch4.addConstraint(Sketcher.Constraint("Vertical", 0))
sketch4.addConstraint(Sketcher.Constraint("Horizontal", 1))
sketch4.addConstraint(Sketcher.Constraint("Vertical", 2))
sketch4.addConstraint(Sketcher.Constraint("Horizontal", 3))
sketch4.addConstraint(Sketcher.Constraint("DistanceY", 0, 2, 0, 1, Q("10.5 mm")))
sketch4.addConstraint(Sketcher.Constraint("DistanceX", 1, 2, -1, 1, Q("1.45 mm")))
sketch4.addConstraint(Sketcher.Constraint("DistanceX", 1, 2, 1, 1, Q("2.880296 mm")))
sketch4.addConstraint(Sketcher.Constraint("DistanceY", -1, 1, 0, 2, Q("8.908819 mm")))
pad4 = body.newObject("PartDesign::Pad", "Pad003")
pad4.Profile = sketch4
pad4.Length = 0.5
pad4.Reversed = True
doc.recompute()

polarpattern = body.newObject("PartDesign::PolarPattern", "PolarPattern")
polarpattern.Originals = [pad4]
polarpattern.Axis = (doc.getObject("Z_Axis"), [""])
polarpattern.Angle = 360
polarpattern.Occurrences = 4
body.Tip = polarpattern

sketch5 = body.newObject("Sketcher::SketchObject", "Sketch004")
sketch5.AttachmentSupport = (doc.getObject("XY_Plane"), [""])
sketch5.MapMode = "FlatFace"
sketch5.AttachmentOffset = App.Placement(V(0, 0, 1.000001), App.Rotation())
sketch5.addGeometry(Part.Circle(V(0, 0, 0), V(0, 0, 1), 14), False)
sketch5.addGeometry(Part.Circle(V(0, 0, 0), V(0, 0, 1), 10), False)
sketch5.addConstraint(Sketcher.Constraint("Coincident", 0, 3, -1, 1))
sketch5.addConstraint(Sketcher.Constraint("Coincident", 1, 3, -1, 1))
sketch5.addConstraint(Sketcher.Constraint("Diameter", 0, Q("28 mm")))
sketch5.addConstraint(Sketcher.Constraint("Diameter", 1, Q("20 mm")))
pad5 = body.newObject("PartDesign::Pad", "Pad004")
pad5.Profile = sketch5
pad5.Length = 1.000001
pad5.Reversed = True

sketch6 = body.newObject("Sketcher::SketchObject", "Sketch005")
sketch6.AttachmentSupport = (doc.getObject("XY_Plane"), [""])
sketch6.MapMode = "FlatFace"
sketch6.AttachmentOffset = App.Placement(V(0, 0, 1.000001), App.Rotation())
sketch6.addGeometry(Part.Circle(V(0, 0, 0), V(0, 0, 1), 1.2), False)
sketch6.addGeometry(Part.Circle(V(8.5, -8.5, 0), V(0, 0, 1), 1.2), False)
sketch6.addGeometry(Part.Circle(V(-8.5, 8.5, 0), V(0, 0, 1), 1.2), False)
sketch6.addGeometry(Part.Circle(V(-8.5, -8.5, 0), V(0, 0, 1), 1.2), False)
sketch6.addGeometry(Part.Circle(V(8.5, 8.5, 0), V(0, 0, 1), 1.2), False)
sketch6.addConstraint(Sketcher.Constraint("Coincident", 0, 3, -1, 1))
sketch6.addConstraint(Sketcher.Constraint("Equal", 0, 1))
sketch6.addConstraint(Sketcher.Constraint("Equal", 1, 2))
sketch6.addConstraint(Sketcher.Constraint("Equal", 2, 3))
sketch6.addConstraint(Sketcher.Constraint("Equal", 3, 4))
sketch6.addConstraint(Sketcher.Constraint("Symmetric", 1, 3, 2, 3, -1, 1))
sketch6.addConstraint(Sketcher.Constraint("Symmetric", 3, 3, 4, 3, -1, 1))
sketch6.addConstraint(Sketcher.Constraint("Symmetric", 1, 3, 3, 3, -2))
sketch6.addConstraint(Sketcher.Constraint("Diameter", 0, Q("2.4 mm")))
sketch6.addConstraint(Sketcher.Constraint("DistanceX", 2, 3, 1, 3, Q("16.97 mm")))
sketch6.addConstraint(Sketcher.Constraint("DistanceY", 1, 3, 2, 3, Q("16.97 mm")))
doc.recompute()
hole = body.newObject("PartDesign::Hole", "Hole")
hole.Profile = sketch6
hole.ThreadType = "None"
hole.Diameter = 2.4
hole.DepthType = "ThroughAll"
hole.HoleCutType = "Countersink"
hole.HoleCutDiameter = 2.45
hole.HoleCutCountersinkAngle = 90

sketch7 = body.newObject("Sketcher::SketchObject", "Sketch006")
sketch7.AttachmentSupport = (doc.getObject("XY_Plane"), [""])
sketch7.MapMode = "FlatFace"
sketch7.AttachmentOffset = App.Placement(V(0, 0, 1.000001), App.Rotation())
sketch7.addGeometry(Part.ArcOfCircle(Part.Circle(V(0, 0, 0), V(0, 0, 1), 14), math.radians(99), math.radians(171)), False)
sketch7.addGeometry(Part.LineSegment(V(-2, 14, 0), V(-2, 20, 0)), False)
sketch7.addGeometry(Part.ArcOfCircle(Part.Circle(V(1, -1, 0), V(0, 0, 1), 22), math.radians(99), math.radians(171)), False)
sketch7.addGeometry(Part.LineSegment(V(-21, 2, 0), V(-14, 2, 0)), False)
sketch7.addGeometry(Part.ArcOfCircle(Part.Circle(V(0, 0, 0), V(0, 0, 1), 14), math.radians(9), math.radians(81)), False)
sketch7.addGeometry(Part.LineSegment(V(14, 2, 0), V(21, 2, 0)), False)
sketch7.addGeometry(Part.ArcOfCircle(Part.Circle(V(2, 2, 0), V(0, 0, 1), 19), math.radians(1), math.radians(91)), False)
sketch7.addGeometry(Part.LineSegment(V(2, 20, 0), V(2, 14, 0)), False)
sketch7.addGeometry(Part.ArcOfCircle(Part.Circle(V(-2, -2, 0), V(0, 0, 1), 19), math.radians(179), math.radians(269)), False)
sketch7.addGeometry(Part.LineSegment(V(-2, -21, 0), V(-2, -14, 0)), False)
sketch7.addGeometry(Part.ArcOfCircle(Part.Circle(V(0, 0, 0), V(0, 0, 1), 14), math.radians(-171), math.radians(-99)), False)
sketch7.addGeometry(Part.LineSegment(V(-14, -2, 0), V(-21, -2, 0)), False)
sketch7.addGeometry(Part.ArcOfCircle(Part.Circle(V(0, 0, 0), V(0, 0, 1), 14), math.radians(-81), math.radians(-9)), False)
sketch7.addGeometry(Part.LineSegment(V(2, -14, 0), V(2, -21, 0)), False)
sketch7.addGeometry(Part.ArcOfCircle(Part.Circle(V(2, -2, 0), V(0, 0, 1), 19), math.radians(-90), math.radians(0)), False)
sketch7.addGeometry(Part.LineSegment(V(21, -2, 0), V(14, -2, 0)), False)
sketch7.addConstraint(Sketcher.Constraint("Coincident", 0, 1, 1, 1))
sketch7.addConstraint(Sketcher.Constraint("Coincident", 1, 2, 2, 1))
sketch7.addConstraint(Sketcher.Constraint("Coincident", 2, 2, 3, 1))
sketch7.addConstraint(Sketcher.Constraint("Coincident", 3, 2, 0, 2))
sketch7.addConstraint(Sketcher.Constraint("Coincident", 4, 1, 5, 1))
sketch7.addConstraint(Sketcher.Constraint("Coincident", 5, 2, 6, 1))
sketch7.addConstraint(Sketcher.Constraint("Coincident", 6, 2, 7, 1))
sketch7.addConstraint(Sketcher.Constraint("Coincident", 7, 2, 4, 2))
sketch7.addConstraint(Sketcher.Constraint("Coincident", 8, 2, 9, 1))
sketch7.addConstraint(Sketcher.Constraint("Coincident", 9, 2, 10, 2))
sketch7.addConstraint(Sketcher.Constraint("Coincident", 10, 1, 11, 1))
sketch7.addConstraint(Sketcher.Constraint("Coincident", 11, 2, 8, 1))
sketch7.addConstraint(Sketcher.Constraint("Coincident", 12, 1, 13, 1))
sketch7.addConstraint(Sketcher.Constraint("Coincident", 13, 2, 14, 1))
sketch7.addConstraint(Sketcher.Constraint("Coincident", 14, 2, 15, 1))
sketch7.addConstraint(Sketcher.Constraint("Coincident", 15, 2, 12, 2))
sketch7.addConstraint(Sketcher.Constraint("Vertical", 1))
sketch7.addConstraint(Sketcher.Constraint("Horizontal", 3))
sketch7.addConstraint(Sketcher.Constraint("Horizontal", 5))
sketch7.addConstraint(Sketcher.Constraint("Vertical", 7))
sketch7.addConstraint(Sketcher.Constraint("Vertical", 9))
sketch7.addConstraint(Sketcher.Constraint("Horizontal", 11))
sketch7.addConstraint(Sketcher.Constraint("Vertical", 13))
sketch7.addConstraint(Sketcher.Constraint("Horizontal", 15))
sketch7.addConstraint(Sketcher.Constraint("Coincident", 0, 3, -1, 1))
sketch7.addConstraint(Sketcher.Constraint("Coincident", 4, 3, -1, 1))
sketch7.addConstraint(Sketcher.Constraint("Coincident", 10, 3, -1, 1))
sketch7.addConstraint(Sketcher.Constraint("Coincident", 12, 3, -1, 1))
sketch7.addConstraint(Sketcher.Constraint("Equal", 0, 4))
sketch7.addConstraint(Sketcher.Constraint("Equal", 4, 10))
sketch7.addConstraint(Sketcher.Constraint("Equal", 10, 12))
sketch7.addConstraint(Sketcher.Constraint("Symmetric", 1, 2, 6, 2, -2))
sketch7.addConstraint(Sketcher.Constraint("Symmetric", 8, 2, 13, 2, -2))
sketch7.addConstraint(Sketcher.Constraint("Symmetric", 2, 2, 11, 2, -1))
sketch7.addConstraint(Sketcher.Constraint("Symmetric", 5, 2, 14, 2, -1))
sketch7.addConstraint(Sketcher.Constraint("Horizontal", 3, 2, 4, 1))
sketch7.addConstraint(Sketcher.Constraint("Vertical", 1, 2, 8, 2))
sketch7.addConstraint(Sketcher.Constraint("Radius", 14, Q("19.113721 mm")))
sketch7.addConstraint(Sketcher.Constraint("Radius", 0, Q("13.994602 mm")))
sketch7.addConstraint(Sketcher.Constraint("Radius", 2, Q("22.140852 mm")))
sketch7.addConstraint(Sketcher.Constraint("Radius", 6, Q("18.762835 mm")))
sketch7.addConstraint(Sketcher.Constraint("Radius", 8, Q("18.788753 mm")))
sketch7.addConstraint(Sketcher.Constraint("DistanceX", 1, 2, 6, 2, Q("4.191 mm")))
sketch7.addConstraint(Sketcher.Constraint("DistanceY", 10, 1, 3, 2, Q("4.191 mm")))
sketch7.addConstraint(Sketcher.Constraint("DistanceX", 5, 1, 5, 2, Q("7.417959 mm")))
sketch7.addConstraint(Sketcher.Constraint("DistanceY", 9, 1, 9, 2, Q("7.326722 mm")))
sketch7.addConstraint(Sketcher.Constraint("DistanceY", 8, 3, 2, 3, Q("0.9447 mm")))
sketch7.addConstraint(Sketcher.Constraint("DistanceX", 3, 1, 3, 2, Q("6.763917 mm")))
pocket1 = body.newObject("PartDesign::Pocket", "Pocket")
pocket1.Profile = sketch7
pocket1.Type = "ThroughAll"

doc.recompute()
